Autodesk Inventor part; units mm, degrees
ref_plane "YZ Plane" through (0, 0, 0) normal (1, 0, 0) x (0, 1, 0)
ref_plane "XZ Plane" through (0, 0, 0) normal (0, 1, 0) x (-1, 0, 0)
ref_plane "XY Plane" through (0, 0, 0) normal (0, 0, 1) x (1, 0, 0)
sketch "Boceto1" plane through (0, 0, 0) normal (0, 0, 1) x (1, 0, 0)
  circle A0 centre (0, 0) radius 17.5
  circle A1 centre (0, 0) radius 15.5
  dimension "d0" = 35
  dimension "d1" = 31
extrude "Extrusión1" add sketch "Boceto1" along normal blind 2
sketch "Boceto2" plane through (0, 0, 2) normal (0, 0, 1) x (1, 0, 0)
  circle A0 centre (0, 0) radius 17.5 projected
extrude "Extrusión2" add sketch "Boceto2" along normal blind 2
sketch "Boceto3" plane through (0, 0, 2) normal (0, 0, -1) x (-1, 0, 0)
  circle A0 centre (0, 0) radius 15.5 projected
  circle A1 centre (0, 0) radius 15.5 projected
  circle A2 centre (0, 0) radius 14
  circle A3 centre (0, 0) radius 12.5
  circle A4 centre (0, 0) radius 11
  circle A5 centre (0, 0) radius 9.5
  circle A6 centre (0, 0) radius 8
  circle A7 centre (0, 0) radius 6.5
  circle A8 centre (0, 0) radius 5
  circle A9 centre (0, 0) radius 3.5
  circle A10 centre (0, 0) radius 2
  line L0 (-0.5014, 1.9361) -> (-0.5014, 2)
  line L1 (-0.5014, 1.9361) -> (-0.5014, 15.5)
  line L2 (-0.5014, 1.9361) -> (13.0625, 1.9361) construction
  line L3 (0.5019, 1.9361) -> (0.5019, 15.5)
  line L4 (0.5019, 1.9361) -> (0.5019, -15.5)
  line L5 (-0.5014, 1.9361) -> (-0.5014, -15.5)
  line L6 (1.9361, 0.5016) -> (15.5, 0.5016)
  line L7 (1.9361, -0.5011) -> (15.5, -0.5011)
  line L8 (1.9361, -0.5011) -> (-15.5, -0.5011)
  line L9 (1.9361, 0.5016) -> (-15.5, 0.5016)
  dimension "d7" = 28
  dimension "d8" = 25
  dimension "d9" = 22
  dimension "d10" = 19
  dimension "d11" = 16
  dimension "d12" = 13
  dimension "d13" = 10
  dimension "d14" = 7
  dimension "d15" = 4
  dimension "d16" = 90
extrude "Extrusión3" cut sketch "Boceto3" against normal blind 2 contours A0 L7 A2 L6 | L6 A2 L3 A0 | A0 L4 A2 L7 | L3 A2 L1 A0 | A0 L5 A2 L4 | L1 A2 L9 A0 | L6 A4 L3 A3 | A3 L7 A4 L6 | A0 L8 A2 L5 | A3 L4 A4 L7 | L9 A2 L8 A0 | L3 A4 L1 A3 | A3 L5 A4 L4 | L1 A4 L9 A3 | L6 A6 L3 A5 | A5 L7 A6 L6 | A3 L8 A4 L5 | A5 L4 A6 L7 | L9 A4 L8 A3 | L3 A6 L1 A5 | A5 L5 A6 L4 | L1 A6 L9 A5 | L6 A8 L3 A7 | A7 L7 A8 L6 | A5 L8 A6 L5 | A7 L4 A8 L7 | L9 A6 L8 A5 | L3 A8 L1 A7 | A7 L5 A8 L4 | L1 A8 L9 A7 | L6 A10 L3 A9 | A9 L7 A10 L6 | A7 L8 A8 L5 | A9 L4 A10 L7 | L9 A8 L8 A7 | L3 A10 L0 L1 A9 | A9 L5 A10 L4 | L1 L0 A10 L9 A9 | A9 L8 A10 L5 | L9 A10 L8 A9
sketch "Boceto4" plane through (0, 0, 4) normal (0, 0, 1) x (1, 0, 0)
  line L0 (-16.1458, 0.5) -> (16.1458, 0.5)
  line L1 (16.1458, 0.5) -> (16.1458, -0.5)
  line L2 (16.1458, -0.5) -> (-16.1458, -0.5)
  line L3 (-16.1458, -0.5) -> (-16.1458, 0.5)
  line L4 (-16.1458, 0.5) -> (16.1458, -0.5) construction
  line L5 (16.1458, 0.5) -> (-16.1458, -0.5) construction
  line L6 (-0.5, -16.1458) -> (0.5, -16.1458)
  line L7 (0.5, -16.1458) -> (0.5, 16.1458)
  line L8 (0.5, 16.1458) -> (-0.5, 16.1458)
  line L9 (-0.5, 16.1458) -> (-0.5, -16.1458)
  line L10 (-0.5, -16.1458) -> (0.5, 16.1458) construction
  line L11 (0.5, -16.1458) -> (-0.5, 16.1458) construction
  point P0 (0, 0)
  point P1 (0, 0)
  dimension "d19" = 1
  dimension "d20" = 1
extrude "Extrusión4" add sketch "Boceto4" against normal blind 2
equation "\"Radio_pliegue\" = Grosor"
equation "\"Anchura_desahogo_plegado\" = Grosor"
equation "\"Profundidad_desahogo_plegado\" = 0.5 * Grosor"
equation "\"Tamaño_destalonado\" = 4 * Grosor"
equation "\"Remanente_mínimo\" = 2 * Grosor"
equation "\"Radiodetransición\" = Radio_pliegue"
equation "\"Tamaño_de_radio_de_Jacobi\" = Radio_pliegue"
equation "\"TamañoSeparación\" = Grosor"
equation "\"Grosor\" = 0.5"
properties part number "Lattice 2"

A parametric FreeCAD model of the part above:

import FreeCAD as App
import Part
import Sketcher

V = App.Vector
Q = App.Units.Quantity

doc = App.newDocument("Part")
body = doc.addObject("PartDesign::Body", "Body")
body.AllowCompound = True

# Sketch on XY plane
sketch1 = body.newObject("Sketcher::SketchObject", "Sketch")
sketch1.AttachmentSupport = (doc.getObject("XY_Plane"), [""])
sketch1.MapMode = "FlatFace"
sketch1.addGeometry([
    Part.Circle(V(0, 0, 0), V(0, 0, 1), 17.5),
    Part.Circle(V(0, 0, 0), V(0, 0, 1), 15.5),
], False)
sketch1.addConstraint([
    Sketcher.Constraint("Coincident", 0, 3, -1, 1),
    Sketcher.Constraint("Coincident", 1, 3, -1, 1),
    Sketcher.Constraint("Diameter", 0, Q("35 mm")),
    Sketcher.Constraint("Diameter", 1, Q("31 mm")),
])
pad1 = body.newObject("PartDesign::Pad", "Pad")
pad1.Profile = sketch1
pad1.Length = 2

# Sketch on XY plane
sketch2 = body.newObject("Sketcher::SketchObject", "Sketch001")
sketch2.AttachmentSupport = (doc.getObject("XY_Plane"), [""])
sketch2.MapMode = "FlatFace"
sketch2.AttachmentOffset = App.Placement(V(0, 0, 2), App.Rotation())
sketch2.addGeometry(Part.Circle(V(0, 0, 0), V(0, 0, 1), 17.5), False)
sketch2.addConstraint([
    Sketcher.Constraint("Coincident", 0, 3, -1, 1),
    Sketcher.Constraint("Diameter", 0, Q("35 mm")),
])
pad2 = body.newObject("PartDesign::Pad", "Pad001")
pad2.Profile = sketch2
pad2.Length = 2

# Sketch on XY plane
sketch3 = body.newObject("Sketcher::SketchObject", "Sketch002")
sketch3.AttachmentSupport = (doc.getObject("XY_Plane"), [""])
sketch3.MapMode = "FlatFace"
sketch3.AttachmentOffset = App.Placement(V(0, 0, 2), App.Rotation())
sketch3.addGeometry([
    Part.Circle(V(0, 0, 0), V(0, 0, 1), 15.5),  # 0
    Part.Circle(V(0, 0, 0), V(0, 0, 1), 14),  # 1
    Part.Circle(V(0, 0, 0), V(0, 0, 1), 12.5),  # 2
    Part.Circle(V(0, 0, 0), V(0, 0, 1), 11),  # 3
    Part.Circle(V(0, 0, 0), V(0, 0, 1), 9.5),  # 4
    Part.Circle(V(0, 0, 0), V(0, 0, 1), 8),  # 5
    Part.Circle(V(0, 0, 0), V(0, 0, 1), 6.5),  # 6
    Part.Circle(V(0, 0, 0), V(0, 0, 1), 5),  # 7
    Part.Circle(V(0, 0, 0), V(0, 0, 1), 3.5),  # 8
    Part.Circle(V(0, 0, 0), V(0, 0, 1), 2),  # 9
], False)
sketch3.addConstraint([
    Sketcher.Constraint("Coincident", 0, 3, -1, 1),
    Sketcher.Constraint("Coincident", 1, 3, -1, 1),
    Sketcher.Constraint("Coincident", 2, 3, -1, 1),
    Sketcher.Constraint("Coincident", 3, 3, -1, 1),
    Sketcher.Constraint("Coincident", 4, 3, -1, 1),
    Sketcher.Constraint("Coincident", 5, 3, -1, 1),
    Sketcher.Constraint("Coincident", 6, 3, -1, 1),
    Sketcher.Constraint("Coincident", 7, 3, -1, 1),
    Sketcher.Constraint("Coincident", 8, 3, -1, 1),
    Sketcher.Constraint("Coincident", 9, 3, -1, 1),
    Sketcher.Constraint("Diameter", 1, Q("28 mm")),
    Sketcher.Constraint("Diameter", 2, Q("25 mm")),
    Sketcher.Constraint("Diameter", 3, Q("22 mm")),
    Sketcher.Constraint("Diameter", 4, Q("19 mm")),
    Sketcher.Constraint("Diameter", 5, Q("16 mm")),
    Sketcher.Constraint("Diameter", 6, Q("13 mm")),
    Sketcher.Constraint("Diameter", 7, Q("10 mm")),
    Sketcher.Constraint("Diameter", 8, Q("7 mm")),
    Sketcher.Constraint("Diameter", 9, Q("4 mm")),
    Sketcher.Constraint("Diameter", 0, Q("31 mm")),
])
pocket1 = body.newObject("PartDesign::Pocket", "Pocket")
pocket1.Profile = sketch3
pocket1.Length = 2
pocket1.Reversed = True

# Sketch on XY plane
sketch4 = body.newObject("Sketcher::SketchObject", "Sketch003")
sketch4.AttachmentSupport = (doc.getObject("XY_Plane"), [""])
sketch4.MapMode = "FlatFace"
sketch4.AttachmentOffset = App.Placement(V(0, 0, 4), App.Rotation())
sketch4.addGeometry([
    Part.LineSegment(V(-0.5, 0.5, 0), V(-16.1458, 0.5, 0)),  # 0
    Part.LineSegment(V(-16.1458, 0.5, 0), V(-16.1458, -0.5, 0)),  # 1
    Part.LineSegment(V(-16.1458, -0.5, 0), V(-0.5, -0.5, 0)),  # 2
    Part.LineSegment(V(-0.5, -0.5, 0), V(-0.5, -16.1458, 0)),  # 3
    Part.LineSegment(V(-0.5, -16.1458, 0), V(0.5, -16.1458, 0)),  # 4
    Part.LineSegment(V(0.5, -16.1458, 0), V(0.5, -0.5, 0)),  # 5
    Part.LineSegment(V(0.5, -0.5, 0), V(16.1458, -0.5, 0)),  # 6
    Part.LineSegment(V(16.1458, -0.5, 0), V(16.1458, 0.5, 0)),  # 7
    Part.LineSegment(V(16.1458, 0.5, 0), V(0.5, 0.5, 0)),  # 8
    Part.LineSegment(V(0.5, 0.5, 0), V(0.5, 16.1458, 0)),  # 9
    Part.LineSegment(V(0.5, 16.1458, 0), V(-0.5, 16.1458, 0)),  # 10
    Part.LineSegment(V(-0.5, 16.1458, 0), V(-0.5, 0.5, 0)),  # 11
], False)
sketch4.addConstraint([
    Sketcher.Constraint("Coincident", 0, 2, 1, 1),
    Sketcher.Constraint("Coincident", 1, 2, 2, 1),
    Sketcher.Constraint("Coincident", 2, 2, 3, 1),
    Sketcher.Constraint("Coincident", 3, 2, 4, 1),
    Sketcher.Constraint("Coincident", 4, 2, 5, 1),
    Sketcher.Constraint("Coincident", 5, 2, 6, 1),
    Sketcher.Constraint("Coincident", 6, 2, 7, 1),
    Sketcher.Constraint("Coincident", 7, 2, 8, 1),
    Sketcher.Constraint("Coincident", 8, 2, 9, 1),
    Sketcher.Constraint("Coincident", 9, 2, 10, 1),
    Sketcher.Constraint("Coincident", 10, 2, 11, 1),
    Sketcher.Constraint("Coincident", 11, 2, 0, 1),
    Sketcher.Constraint("Horizontal", 0),
    Sketcher.Constraint("Vertical", 1),
    Sketcher.Constraint("Horizontal", 2),
    Sketcher.Constraint("Vertical", 3),
    Sketcher.Constraint("Horizontal", 4),
    Sketcher.Constraint("Vertical", 5),
    Sketcher.Constraint("Horizontal", 6),
    Sketcher.Constraint("Vertical", 7),
    Sketcher.Constraint("Horizontal", 8),
    Sketcher.Constraint("Vertical", 9),
    Sketcher.Constraint("Horizontal", 10),
    Sketcher.Constraint("Vertical", 11),
    Sketcher.Constraint("Symmetric", 0, 2, 6, 2, -1, 1),
    Sketcher.Constraint("Symmetric", 2, 2, 8, 2, -1, 1),
    Sketcher.Constraint("Symmetric", 4, 2, 10, 2, -1, 1),
    Sketcher.Constraint("Symmetric", 2, 2, 5, 2, -2),
    Sketcher.Constraint("Equal", 10, 1),
    Sketcher.Constraint("Equal", 8, 3),
    Sketcher.Constraint("DistanceX", 4, 1, 4, 2, Q("1 mm")),
    Sketcher.Constraint("DistanceX", 0, 2, 0, 1, Q("15.6458 mm")),
])
pad3 = body.newObject("PartDesign::Pad", "Pad002")
pad3.Profile = sketch4
pad3.Length = 2
pad3.Reversed = True

doc.recompute()
